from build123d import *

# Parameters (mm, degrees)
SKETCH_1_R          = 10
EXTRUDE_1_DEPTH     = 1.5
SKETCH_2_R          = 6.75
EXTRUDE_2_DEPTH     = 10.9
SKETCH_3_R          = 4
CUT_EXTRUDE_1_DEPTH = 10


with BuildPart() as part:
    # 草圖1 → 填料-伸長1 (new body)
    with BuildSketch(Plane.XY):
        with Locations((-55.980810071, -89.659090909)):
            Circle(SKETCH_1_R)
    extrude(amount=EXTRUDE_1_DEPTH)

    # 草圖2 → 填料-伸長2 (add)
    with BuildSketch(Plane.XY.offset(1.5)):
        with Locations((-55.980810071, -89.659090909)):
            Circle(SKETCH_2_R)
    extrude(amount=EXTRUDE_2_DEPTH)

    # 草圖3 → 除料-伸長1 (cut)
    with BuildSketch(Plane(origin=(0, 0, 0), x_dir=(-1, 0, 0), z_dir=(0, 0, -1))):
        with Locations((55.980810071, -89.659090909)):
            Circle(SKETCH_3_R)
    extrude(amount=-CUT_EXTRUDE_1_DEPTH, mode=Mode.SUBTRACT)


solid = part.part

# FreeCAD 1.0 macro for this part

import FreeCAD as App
import Part
import Sketcher

V = App.Vector
Q = App.Units.Quantity

doc = App.newDocument("Part")
body = doc.addObject("PartDesign::Body", "Body")

# Sketch on XY plane
sketch1 = body.newObject("Sketcher::SketchObject", "Sketch")
sketch1.AttachmentSupport = (doc.getObject("XY_Plane"), [""])
sketch1.MapMode = "FlatFace"
sketch1.addGeometry(Part.Circle(V(-55.98081, -89.659091, 0), V(0, 0, 1), 10), False)
sketch1.addConstraint(Sketcher.Constraint("Diameter", 0, Q("20 mm")))
sketch1.addConstraint(Sketcher.Constraint("DistanceX", 0, 3, -1, 1, Q("55.98081 mm")))
sketch1.addConstraint(Sketcher.Constraint("DistanceY", 0, 3, -1, 1, Q("89.659091 mm")))
pad1 = body.newObject("PartDesign::Pad", "Pad")
pad1.Profile = sketch1
pad1.Length = 1.5

# Sketch on XY plane
sketch2 = body.newObject("Sketcher::SketchObject", "Sketch001")
sketch2.AttachmentSupport = (doc.getObject("XY_Plane"), [""])
sketch2.MapMode = "FlatFace"
sketch2.AttachmentOffset = App.Placement(V(0, 0, 1.5), App.Rotation())
sketch2.addGeometry(Part.Circle(V(-55.98081, -89.659091, 0), V(0, 0, 1), 6.75), False)
sketch2.addConstraint(Sketcher.Constraint("Diameter", 0, Q("13.5 mm")))
sketch2.addConstraint(Sketcher.Constraint("DistanceX", 0, 3, -1, 1, Q("55.98081 mm")))
sketch2.addConstraint(Sketcher.Constraint("DistanceY", 0, 3, -1, 1, Q("89.659091 mm")))
pad2 = body.newObject("PartDesign::Pad", "Pad001")
pad2.Profile = sketch2
pad2.Length = 10.9

# Sketch on XY plane
sketch3 = body.newObject("Sketcher::SketchObject", "Sketch002")
sketch3.AttachmentSupport = (doc.getObject("XY_Plane"), [""])
sketch3.MapMode = "FlatFace"
sketch3.addGeometry(Part.Circle(V(-55.98081, -89.659091, 0), V(0, 0, 1), 4), False)
sketch3.addConstraint(Sketcher.Constraint("Diameter", 0, Q("8 mm")))
sketch3.addConstraint(Sketcher.Constraint("DistanceX", 0, 3, -1, 1, Q("55.98081 mm")))
sketch3.addConstraint(Sketcher.Constraint("DistanceY", 0, 3, -1, 1, Q("89.659091 mm")))
pocket1 = body.newObject("PartDesign::Pocket", "Pocket")
pocket1.Profile = sketch3
pocket1.Length = 10
pocket1.Reversed = True

doc.recompute()
